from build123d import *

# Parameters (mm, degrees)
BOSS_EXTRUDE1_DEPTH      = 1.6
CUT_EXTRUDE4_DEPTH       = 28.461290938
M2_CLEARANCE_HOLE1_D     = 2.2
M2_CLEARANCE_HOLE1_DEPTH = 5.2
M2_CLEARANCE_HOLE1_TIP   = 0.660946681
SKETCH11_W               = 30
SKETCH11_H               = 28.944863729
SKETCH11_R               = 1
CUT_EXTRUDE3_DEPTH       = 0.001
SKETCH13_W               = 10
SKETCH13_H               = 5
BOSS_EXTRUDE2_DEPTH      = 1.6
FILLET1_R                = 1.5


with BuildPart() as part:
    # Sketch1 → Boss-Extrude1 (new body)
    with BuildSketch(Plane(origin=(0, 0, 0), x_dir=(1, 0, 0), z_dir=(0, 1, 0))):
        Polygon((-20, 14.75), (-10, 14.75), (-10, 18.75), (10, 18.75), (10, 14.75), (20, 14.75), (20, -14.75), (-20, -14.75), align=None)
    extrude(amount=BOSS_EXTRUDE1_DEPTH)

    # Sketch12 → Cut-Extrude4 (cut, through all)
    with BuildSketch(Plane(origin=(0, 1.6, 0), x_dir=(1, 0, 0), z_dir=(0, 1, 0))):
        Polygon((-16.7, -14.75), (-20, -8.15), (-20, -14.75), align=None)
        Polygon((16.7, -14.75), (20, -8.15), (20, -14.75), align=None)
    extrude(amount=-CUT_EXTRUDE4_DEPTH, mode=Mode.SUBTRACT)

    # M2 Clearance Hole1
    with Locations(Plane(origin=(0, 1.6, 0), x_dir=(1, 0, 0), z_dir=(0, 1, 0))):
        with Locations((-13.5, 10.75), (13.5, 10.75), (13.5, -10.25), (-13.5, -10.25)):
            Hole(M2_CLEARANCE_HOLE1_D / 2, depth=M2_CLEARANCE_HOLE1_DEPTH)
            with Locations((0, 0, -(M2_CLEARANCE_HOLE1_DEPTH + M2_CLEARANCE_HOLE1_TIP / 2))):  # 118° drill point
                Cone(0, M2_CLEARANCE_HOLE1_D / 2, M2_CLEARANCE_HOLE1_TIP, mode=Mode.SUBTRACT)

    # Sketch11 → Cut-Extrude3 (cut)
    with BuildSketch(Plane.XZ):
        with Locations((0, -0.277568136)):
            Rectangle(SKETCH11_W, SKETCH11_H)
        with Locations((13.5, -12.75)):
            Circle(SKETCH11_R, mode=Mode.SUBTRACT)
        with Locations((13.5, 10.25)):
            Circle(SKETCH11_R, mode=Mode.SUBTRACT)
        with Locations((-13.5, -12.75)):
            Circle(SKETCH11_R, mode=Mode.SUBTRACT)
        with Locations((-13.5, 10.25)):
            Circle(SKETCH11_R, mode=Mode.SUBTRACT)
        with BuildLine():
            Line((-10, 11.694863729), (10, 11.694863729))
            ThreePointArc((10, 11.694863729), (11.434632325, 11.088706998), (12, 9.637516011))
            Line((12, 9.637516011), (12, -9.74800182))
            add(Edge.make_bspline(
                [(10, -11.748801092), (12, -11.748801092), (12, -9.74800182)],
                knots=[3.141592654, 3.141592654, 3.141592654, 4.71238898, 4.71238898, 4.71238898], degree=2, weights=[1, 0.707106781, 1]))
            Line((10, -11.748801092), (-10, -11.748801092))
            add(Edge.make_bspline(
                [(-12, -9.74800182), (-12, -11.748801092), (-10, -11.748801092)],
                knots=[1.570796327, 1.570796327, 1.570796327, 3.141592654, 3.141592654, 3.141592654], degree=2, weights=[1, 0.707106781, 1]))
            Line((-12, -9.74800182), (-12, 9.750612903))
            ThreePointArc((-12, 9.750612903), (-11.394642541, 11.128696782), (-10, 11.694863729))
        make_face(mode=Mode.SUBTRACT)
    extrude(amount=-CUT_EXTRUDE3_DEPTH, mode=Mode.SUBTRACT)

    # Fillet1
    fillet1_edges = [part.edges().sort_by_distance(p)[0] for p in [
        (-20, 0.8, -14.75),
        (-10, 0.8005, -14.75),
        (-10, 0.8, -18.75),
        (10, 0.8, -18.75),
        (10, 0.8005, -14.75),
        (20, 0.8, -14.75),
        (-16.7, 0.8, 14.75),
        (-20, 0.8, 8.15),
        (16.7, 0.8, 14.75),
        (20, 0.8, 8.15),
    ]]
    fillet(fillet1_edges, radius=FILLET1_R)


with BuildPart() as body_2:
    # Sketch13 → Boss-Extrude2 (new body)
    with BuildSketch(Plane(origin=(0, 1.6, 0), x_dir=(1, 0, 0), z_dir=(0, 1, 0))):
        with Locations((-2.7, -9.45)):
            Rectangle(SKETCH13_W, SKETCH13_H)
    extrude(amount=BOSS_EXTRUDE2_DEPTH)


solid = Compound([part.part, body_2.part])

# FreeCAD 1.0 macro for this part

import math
import FreeCAD as App
import Part
import Sketcher


def edges_at(feature, points):
    """Names of the edges that pass closest to the given points."""
    edges = feature.Shape.Edges
    near = lambda p: min(range(len(edges)), key=lambda i: edges[i].distToShape(Part.Vertex(*p))[0])
    return sorted({f"Edge{near(p) + 1}" for p in points})


def add_polygon(sketch, points):
    """Adds a closed chain of lines whose ends are joined by coincident constraints."""
    first, n = sketch.GeometryCount, len(points)
    for a, b in zip(points, points[1:] + points[:1]):
        sketch.addGeometry(Part.LineSegment(App.Vector(*a, 0), App.Vector(*b, 0)), False)
    for i in range(n):
        sketch.addConstraint(Sketcher.Constraint("Coincident", first + i, 2, first + (i + 1) % n, 1))

doc = App.newDocument("Part")
body = doc.addObject("PartDesign::Body", "Body")

sketch1 = body.newObject("Sketcher::SketchObject", "Sketch")
sketch1.AttachmentSupport = (doc.getObject("XZ_Plane"), [""])
sketch1.MapMode = "FlatFace"
add_polygon(sketch1, [(-10, -14.8), (-20, -14.8), (-20, 14.8), (20, 14.8), (20, -14.8), (10, -14.8), (10, -18.8), (-10, -18.8)])
sketch1.addConstraint([
    Sketcher.Constraint("Horizontal", 0),
    Sketcher.Constraint("Vertical", 1),
    Sketcher.Constraint("Horizontal", 2),
    Sketcher.Constraint("Vertical", 3),
    Sketcher.Constraint("Horizontal", 4),
    Sketcher.Constraint("Vertical", 5),
    Sketcher.Constraint("Horizontal", 6),
    Sketcher.Constraint("Vertical", 7),
    Sketcher.Constraint("Symmetric", 0, 2, 2, 2, -1, 1),
    Sketcher.Constraint("Symmetric", 4, 2, 7, 2, -2),
    Sketcher.Constraint("DistanceX", 0, 2, 0, 1, 10.0),
    Sketcher.Constraint("DistanceX", 2, 1, 2, 2, 40.0),
    Sketcher.Constraint("DistanceY", 5, 2, 5, 1, 4.0),
    Sketcher.Constraint("DistanceY", 1, 1, 1, 2, 29.5),
])
pad1 = body.newObject("PartDesign::Pad", "Pad")
pad1.Profile = sketch1
pad1.Length = 1.6
pad1.Reversed = True

sketch2 = body.newObject("Sketcher::SketchObject", "Sketch001")
sketch2.AttachmentSupport = (doc.getObject("XZ_Plane"), [""])
sketch2.MapMode = "FlatFace"
sketch2.AttachmentOffset = App.Placement(App.Vector(0, 0, -1.6), App.Rotation())
add_polygon(sketch2, [(-16.7, 14.8), (-20, 8.2), (-20, 14.8)])
add_polygon(sketch2, [(20, 8.2), (16.7, 14.8), (20, 14.8)])
sketch2.addConstraint([
    Sketcher.Constraint("Vertical", 1),
    Sketcher.Constraint("Horizontal", 2),
    Sketcher.Constraint("Horizontal", 4),
    Sketcher.Constraint("Vertical", 5),
    Sketcher.Constraint("Symmetric", 2, 2, 3, 2, -2),
    Sketcher.Constraint("Symmetric", 0, 2, 5, 2, -2),
    Sketcher.Constraint("DistanceX", 2, 1, 2, 2, 3.3),
    Sketcher.Constraint("DistanceY", 1, 1, 1, 2, 6.6),
    Sketcher.Constraint("DistanceX", 0, 2, -1, 1, 20.0),
    Sketcher.Constraint("DistanceY", -1, 1, 0, 2, 8.15),
])
pocket1 = body.newObject("PartDesign::Pocket", "Pocket")
pocket1.Profile = sketch2
pocket1.Type = "ThroughAll"
pocket1.Reversed = True

sketch3 = body.newObject("Sketcher::SketchObject", "Sketch002")
sketch3.AttachmentSupport = (doc.getObject("XZ_Plane"), [""])
sketch3.MapMode = "FlatFace"
sketch3.AttachmentOffset = App.Placement(App.Vector(0, 0, -1.6), App.Rotation())
sketch3.addGeometry([
    Part.Circle(App.Vector(-13.5, -10.8, 0), App.Vector(0, 0, 1), 1.1),
    Part.Circle(App.Vector(13.5, -10.8, 0), App.Vector(0, 0, 1), 1.1),
    Part.Circle(App.Vector(13.5, 10.2, 0), App.Vector(0, 0, 1), 1.1),
    Part.Circle(App.Vector(-13.5, 10.2, 0), App.Vector(0, 0, 1), 1.1),
], False)
sketch3.addConstraint([
    Sketcher.Constraint("Equal", 0, 1),
    Sketcher.Constraint("Equal", 1, 2),
    Sketcher.Constraint("Equal", 2, 3),
    Sketcher.Constraint("Symmetric", 0, 3, 1, 3, -2),
    Sketcher.Constraint("Symmetric", 2, 3, 3, 3, -2),
    Sketcher.Constraint("Vertical", 1, 3, 2, 3),
    Sketcher.Constraint("Diameter", 0, 2.2),
    Sketcher.Constraint("DistanceX", 0, 3, 1, 3, 27.0),
    Sketcher.Constraint("DistanceY", 1, 3, 2, 3, 21.0),
    Sketcher.Constraint("DistanceY", 0, 3, -1, 1, 10.75),
])
doc.recompute()
hole = body.newObject("PartDesign::Hole", "Hole")
hole.Profile = sketch3
hole.ThreadType = "None"
hole.Diameter = 2.2
hole.DepthType = "Dimension"
hole.Depth = 5.2
hole.DrillPoint = "Angled"
hole.DrillPointAngle = 118
hole.Reversed = True

sketch4 = body.newObject("Sketcher::SketchObject", "Sketch003")
sketch4.AttachmentSupport = (doc.getObject("XZ_Plane"), [""])
sketch4.MapMode = "FlatFace"
add_polygon(sketch4, [(-15, 14.194864), (-15, -14.75), (15, -14.75), (15, 14.194864)])
sketch4.addGeometry(Part.Circle(App.Vector(-13.5, -12.75, 0), App.Vector(0, 0, 1), 1), False)
sketch4.addGeometry(Part.Circle(App.Vector(13.5, -12.75, 0), App.Vector(0, 0, 1), 1), False)
sketch4.addGeometry(Part.Circle(App.Vector(-13.5, 10.25, 0), App.Vector(0, 0, 1), 1), False)
sketch4.addGeometry(Part.ArcOfCircle(Part.Circle(App.Vector(-10, 9.694064, 0), App.Vector(0, 0, 1), 2.000799), math.radians(90), math.radians(178.380438)), False)
sketch4.addGeometry(Part.LineSegment(App.Vector(-10, 11.694864, 0), App.Vector(10, 11.694864, 0)), False)
sketch4.addGeometry(Part.ArcOfCircle(Part.Circle(App.Vector(10, 9.694064, 0), App.Vector(0, 0, 1), 2.000799), math.radians(-1.619562), math.radians(90)), False)
sketch4.addGeometry(Part.LineSegment(App.Vector(12, 9.637516, 0), App.Vector(12, -9.748002, 0)), False)
sketch4.addGeometry(Part.BSplineCurve([App.Vector(10, -11.748801, 0), App.Vector(12, -11.748801, 0), App.Vector(12, -9.748002, 0)], [3, 3], [3.141592654, 4.71238898], False, 2, [1, 0.707106781, 1], False), False)
sketch4.addGeometry(Part.LineSegment(App.Vector(10, -11.748801, 0), App.Vector(-10, -11.748801, 0)), False)
sketch4.addGeometry(Part.BSplineCurve([App.Vector(-12, -9.748002, 0), App.Vector(-12, -11.748801, 0), App.Vector(-10, -11.748801, 0)], [3, 3], [1.570796327, 3.141592654], False, 2, [1, 0.707106781, 1], False), False)
sketch4.addGeometry(Part.LineSegment(App.Vector(-12, -9.748002, 0), App.Vector(-12, 9.750613, 0)), False)
sketch4.addGeometry(Part.Circle(App.Vector(13.5, 10.25, 0), App.Vector(0, 0, 1), 1), False)
sketch4.addConstraint([
    Sketcher.Constraint("Block", 11),
    Sketcher.Constraint("Block", 13),
    Sketcher.Constraint("Coincident", 7, 1, 8, 1),
    Sketcher.Constraint("Coincident", 8, 2, 9, 2),
    Sketcher.Constraint("Coincident", 9, 1, 10, 1),
    Sketcher.Constraint("Coincident", 10, 2, 11, 2),
    Sketcher.Constraint("Coincident", 11, 1, 12, 1),
    Sketcher.Constraint("Coincident", 12, 2, 13, 2),
    Sketcher.Constraint("Coincident", 13, 1, 14, 1),
    Sketcher.Constraint("Coincident", 14, 2, 7, 2),
    Sketcher.Constraint("Vertical", 0),
    Sketcher.Constraint("Horizontal", 1),
    Sketcher.Constraint("Vertical", 2),
    Sketcher.Constraint("Horizontal", 3),
    Sketcher.Constraint("Horizontal", 8),
    Sketcher.Constraint("Vertical", 10),
    Sketcher.Constraint("Vertical", 14),
    Sketcher.Constraint("Diameter", 4, 2.0),
    Sketcher.Constraint("Diameter", 5, 2.0),
    Sketcher.Constraint("Diameter", 6, 2.0),
    Sketcher.Constraint("Diameter", 15, 2.0),
    Sketcher.Constraint("DistanceX", 1, 1, 1, 2, 30.0),
    Sketcher.Constraint("DistanceX", 8, 1, 8, 2, 20.0),
    Sketcher.Constraint("DistanceX", 7, 3, -1, 1, 10.0),
    Sketcher.Constraint("DistanceX", -1, 1, 9, 3, 10.0),
    Sketcher.Constraint("DistanceX", 0, 2, -1, 1, 15.0),
    Sketcher.Constraint("DistanceX", 7, 1, -1, 1, 10.0),
    Sketcher.Constraint("DistanceX", 4, 3, 5, 3, 27.0),
    Sketcher.Constraint("DistanceY", 4, 3, 6, 3, 23.0),
    Sketcher.Constraint("DistanceX", 6, 3, 5, 3, 27.0),
    Sketcher.Constraint("DistanceY", 5, 3, 6, 3, 23.0),
    Sketcher.Constraint("DistanceY", 5, 3, 15, 3, 23.0),
    Sketcher.Constraint("DistanceX", 6, 3, 15, 3, 27.0),
    Sketcher.Constraint("DistanceY", 0, 2, 4, 3, 2.0),
    Sketcher.Constraint("DistanceX", 4, 3, -1, 1, 13.5),
    Sketcher.Constraint("Radius", 7, 2.000799),
    Sketcher.Constraint("Radius", 9, 2.000799),
    Sketcher.Constraint("DistanceY", 7, 1, 3, 2, 2.5),
    Sketcher.Constraint("DistanceY", 4, 3, -1, 1, 12.75),
    Sketcher.Constraint("DistanceY", 0, 2, 0, 1, 28.944864),
])
pocket2 = body.newObject("PartDesign::Pocket", "Pocket001")
pocket2.Profile = sketch4
pocket2.Length = 0.001
doc.recompute()

fillet = body.newObject("PartDesign::Fillet", "Fillet")
fillet.Base = (pocket2, edges_at(pocket2, [
    (-20, 0.8, -14.75),
    (-10, 0.8, -14.75),
    (-10, 0.8, -18.75),
    (10, 0.8, -18.75),
    (10, 0.8, -14.75),
    (20, 0.8, -14.75),
    (-16.7, 0.8, 14.75),
    (-20, 0.8, 8.15),
    (16.7, 0.8, 14.75),
    (20, 0.8, 8.15),
]))
fillet.Radius = 1.5
body2 = doc.addObject("PartDesign::Body", "Body001")

sketch5 = body2.newObject("Sketcher::SketchObject", "Sketch004")
sketch5.AttachmentSupport = (doc.getObject("XZ_Plane001"), [""])
sketch5.MapMode = "FlatFace"
sketch5.AttachmentOffset = App.Placement(App.Vector(0, 0, -1.6), App.Rotation())
add_polygon(sketch5, [(-7.7, 7), (-7.7, 11.9), (2.3, 11.9), (2.3, 7)])
sketch5.addConstraint([
    Sketcher.Constraint("Vertical", 0),
    Sketcher.Constraint("Horizontal", 1),
    Sketcher.Constraint("Vertical", 2),
    Sketcher.Constraint("Horizontal", 3),
    Sketcher.Constraint("DistanceX", 1, 1, 1, 2, 10.0),
    Sketcher.Constraint("DistanceY", 0, 1, 0, 2, 5.0),
    Sketcher.Constraint("DistanceX", 0, 2, -1, 1, 7.7),
    Sketcher.Constraint("DistanceY", -1, 1, 0, 2, 11.95),
])
pad2 = body2.newObject("PartDesign::Pad", "Pad001")
pad2.Profile = sketch5
pad2.Length = 1.6
pad2.Reversed = True

doc.recompute()
